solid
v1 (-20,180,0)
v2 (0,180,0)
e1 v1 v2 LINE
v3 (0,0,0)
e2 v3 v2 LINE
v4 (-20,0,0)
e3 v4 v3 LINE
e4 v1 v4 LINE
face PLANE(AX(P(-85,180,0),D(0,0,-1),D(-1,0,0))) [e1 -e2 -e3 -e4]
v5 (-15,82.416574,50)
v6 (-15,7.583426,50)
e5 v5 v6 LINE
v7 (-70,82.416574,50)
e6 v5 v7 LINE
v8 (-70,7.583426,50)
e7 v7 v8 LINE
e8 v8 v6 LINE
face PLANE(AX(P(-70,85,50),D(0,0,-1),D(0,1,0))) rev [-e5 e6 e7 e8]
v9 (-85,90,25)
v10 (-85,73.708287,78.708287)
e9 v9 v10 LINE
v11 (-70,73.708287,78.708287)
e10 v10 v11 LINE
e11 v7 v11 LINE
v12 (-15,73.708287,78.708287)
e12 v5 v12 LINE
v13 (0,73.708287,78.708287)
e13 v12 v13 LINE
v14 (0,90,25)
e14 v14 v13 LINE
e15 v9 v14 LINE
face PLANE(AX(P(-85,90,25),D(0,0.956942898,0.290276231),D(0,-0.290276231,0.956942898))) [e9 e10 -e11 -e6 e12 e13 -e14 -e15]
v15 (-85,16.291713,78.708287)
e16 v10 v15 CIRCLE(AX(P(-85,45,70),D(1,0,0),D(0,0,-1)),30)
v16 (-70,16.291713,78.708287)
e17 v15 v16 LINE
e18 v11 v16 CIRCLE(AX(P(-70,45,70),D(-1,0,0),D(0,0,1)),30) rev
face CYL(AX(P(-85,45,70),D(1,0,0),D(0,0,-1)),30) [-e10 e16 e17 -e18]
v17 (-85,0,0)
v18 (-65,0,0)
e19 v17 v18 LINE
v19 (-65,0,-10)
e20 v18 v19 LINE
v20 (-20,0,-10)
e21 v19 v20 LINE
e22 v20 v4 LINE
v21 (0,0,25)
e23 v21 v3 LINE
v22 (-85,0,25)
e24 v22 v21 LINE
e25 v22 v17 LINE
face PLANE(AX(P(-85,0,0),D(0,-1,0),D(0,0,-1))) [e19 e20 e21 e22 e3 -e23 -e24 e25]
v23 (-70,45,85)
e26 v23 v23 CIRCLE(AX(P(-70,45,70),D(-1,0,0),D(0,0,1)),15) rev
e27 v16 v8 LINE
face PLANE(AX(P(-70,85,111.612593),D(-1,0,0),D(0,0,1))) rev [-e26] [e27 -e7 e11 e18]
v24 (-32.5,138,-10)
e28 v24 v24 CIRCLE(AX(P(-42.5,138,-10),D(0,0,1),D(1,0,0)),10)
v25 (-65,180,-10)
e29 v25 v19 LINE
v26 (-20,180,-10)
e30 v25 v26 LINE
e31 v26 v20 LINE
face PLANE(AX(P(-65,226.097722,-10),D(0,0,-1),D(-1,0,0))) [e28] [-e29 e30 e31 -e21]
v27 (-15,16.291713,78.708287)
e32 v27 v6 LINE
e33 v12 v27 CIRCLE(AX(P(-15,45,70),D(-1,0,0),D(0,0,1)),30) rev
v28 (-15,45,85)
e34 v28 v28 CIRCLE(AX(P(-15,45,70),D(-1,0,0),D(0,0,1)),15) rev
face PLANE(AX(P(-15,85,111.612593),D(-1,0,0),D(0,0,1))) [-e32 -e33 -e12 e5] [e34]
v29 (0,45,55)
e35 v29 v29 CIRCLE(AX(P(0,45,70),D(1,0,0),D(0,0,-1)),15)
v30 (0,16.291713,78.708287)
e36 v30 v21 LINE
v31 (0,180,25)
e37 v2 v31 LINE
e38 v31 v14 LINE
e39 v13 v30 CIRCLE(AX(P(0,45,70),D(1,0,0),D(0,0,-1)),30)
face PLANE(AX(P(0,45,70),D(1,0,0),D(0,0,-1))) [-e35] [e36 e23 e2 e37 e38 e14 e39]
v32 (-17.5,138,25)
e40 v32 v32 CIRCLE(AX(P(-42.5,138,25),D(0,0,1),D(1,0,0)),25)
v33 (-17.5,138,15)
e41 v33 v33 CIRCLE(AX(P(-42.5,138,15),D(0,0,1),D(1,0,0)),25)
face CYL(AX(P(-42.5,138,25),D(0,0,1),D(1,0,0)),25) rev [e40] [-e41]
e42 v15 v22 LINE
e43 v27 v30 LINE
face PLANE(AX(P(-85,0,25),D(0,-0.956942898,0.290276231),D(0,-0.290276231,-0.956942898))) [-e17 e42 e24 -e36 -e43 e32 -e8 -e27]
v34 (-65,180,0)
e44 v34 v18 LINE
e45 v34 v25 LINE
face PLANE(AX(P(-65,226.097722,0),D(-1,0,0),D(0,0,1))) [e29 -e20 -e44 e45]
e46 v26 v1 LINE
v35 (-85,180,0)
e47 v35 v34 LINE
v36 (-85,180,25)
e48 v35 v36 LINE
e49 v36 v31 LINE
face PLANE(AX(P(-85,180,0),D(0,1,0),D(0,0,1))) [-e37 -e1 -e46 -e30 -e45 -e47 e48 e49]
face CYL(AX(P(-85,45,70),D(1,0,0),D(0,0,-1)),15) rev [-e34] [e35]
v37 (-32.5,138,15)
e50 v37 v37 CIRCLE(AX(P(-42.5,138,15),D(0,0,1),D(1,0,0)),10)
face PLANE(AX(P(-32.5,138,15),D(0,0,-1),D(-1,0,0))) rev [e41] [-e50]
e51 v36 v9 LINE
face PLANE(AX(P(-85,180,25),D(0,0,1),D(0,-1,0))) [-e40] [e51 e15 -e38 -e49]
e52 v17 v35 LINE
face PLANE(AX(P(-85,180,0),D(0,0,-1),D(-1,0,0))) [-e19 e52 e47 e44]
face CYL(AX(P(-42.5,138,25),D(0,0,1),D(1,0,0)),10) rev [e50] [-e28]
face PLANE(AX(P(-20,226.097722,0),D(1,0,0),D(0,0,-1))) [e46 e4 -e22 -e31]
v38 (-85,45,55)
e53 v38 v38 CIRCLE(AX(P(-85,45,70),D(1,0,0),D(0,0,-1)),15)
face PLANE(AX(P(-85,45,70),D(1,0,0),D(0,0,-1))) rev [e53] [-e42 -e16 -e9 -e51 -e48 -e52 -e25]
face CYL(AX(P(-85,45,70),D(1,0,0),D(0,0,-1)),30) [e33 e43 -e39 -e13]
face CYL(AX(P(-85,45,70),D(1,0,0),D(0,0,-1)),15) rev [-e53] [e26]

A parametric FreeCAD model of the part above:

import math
import FreeCAD as App
import Part
import Sketcher
from FreeCAD import Vector

doc = App.newDocument("Part")
body = doc.addObject("PartDesign::Body", "Body")

# Sketch on YZ plane
sketch1 = body.newObject("Sketcher::SketchObject", "Sketch")
sketch1.AttachmentSupport = (doc.getObject("YZ_Plane"), [""])
sketch1.MapMode = "FlatFace"
sketch1.addGeometry(Part.LineSegment(Vector(0, 0, 0), Vector(180, 0, 0)), False)
sketch1.addGeometry(Part.LineSegment(Vector(180, 0, 0), Vector(180, 25, 0)), False)
sketch1.addGeometry(Part.LineSegment(Vector(180, 25, 0), Vector(90, 25, 0)), False)
sketch1.addGeometry(Part.LineSegment(Vector(90, 25, 0), Vector(74, 79, 0)), False)
sketch1.addGeometry(Part.ArcOfCircle(Part.Circle(Vector(45, 70, 0), Vector(0, 0, 1), 30), math.radians(17), math.radians(163)), False)
sketch1.addGeometry(Part.LineSegment(Vector(16, 79, 0), Vector(0, 25, 0)), False)
sketch1.addGeometry(Part.LineSegment(Vector(0, 25, 0), Vector(0, 0, 0)), False)
sketch1.addGeometry(Part.Circle(Vector(45, 70, 0), Vector(0, 0, 1), 15), False)
sketch1.addConstraint(Sketcher.Constraint("Coincident", 0, 2, 1, 1))
sketch1.addConstraint(Sketcher.Constraint("Coincident", 1, 2, 2, 1))
sketch1.addConstraint(Sketcher.Constraint("Coincident", 2, 2, 3, 1))
sketch1.addConstraint(Sketcher.Constraint("Tangent", 3, 2, 4, 1))
sketch1.addConstraint(Sketcher.Constraint("Tangent", 4, 2, 5, 1))
sketch1.addConstraint(Sketcher.Constraint("Coincident", 5, 2, 6, 1))
sketch1.addConstraint(Sketcher.Constraint("Coincident", 6, 2, 0, 1))
sketch1.addConstraint(Sketcher.Constraint("Horizontal", 0))
sketch1.addConstraint(Sketcher.Constraint("Vertical", 1))
sketch1.addConstraint(Sketcher.Constraint("Horizontal", 2))
sketch1.addConstraint(Sketcher.Constraint("Vertical", 6))
sketch1.addConstraint(Sketcher.Constraint("Coincident", 6, 2, -1, 1))
sketch1.addConstraint(Sketcher.Constraint("Coincident", 7, 3, 4, 3))
sketch1.addConstraint(Sketcher.Constraint("Horizontal", 3, 2, 4, 2))
sketch1.addConstraint(Sketcher.Constraint("Horizontal", 2, 2, 5, 2))
sketch1.addConstraint(Sketcher.Constraint("Diameter", 7, 30.0))
sketch1.addConstraint(Sketcher.Constraint("Radius", 4, 30.0))
sketch1.addConstraint(Sketcher.Constraint("DistanceX", 0, 1, 0, 2, 180.0))
sketch1.addConstraint(Sketcher.Constraint("DistanceX", 2, 2, 2, 1, 90.0))
sketch1.addConstraint(Sketcher.Constraint("DistanceY", 1, 1, 1, 2, 25.0))
sketch1.addConstraint(Sketcher.Constraint("DistanceY", -1, 1, 4, 3, 70.0))
pad1 = body.newObject("PartDesign::Pad", "Pad")
pad1.Profile = sketch1
pad1.Length = 85
pad1.Reversed = True

# Sketch on XZ plane
sketch2 = body.newObject("Sketcher::SketchObject", "Sketch001")
sketch2.AttachmentSupport = (doc.getObject("XZ_Plane"), [""])
sketch2.MapMode = "FlatFace"
sketch2.addGeometry(Part.LineSegment(Vector(-70, 112, 0), Vector(-70, 50, 0)), False)
sketch2.addGeometry(Part.LineSegment(Vector(-70, 50, 0), Vector(-15, 50, 0)), False)
sketch2.addGeometry(Part.LineSegment(Vector(-15, 50, 0), Vector(-15, 112, 0)), False)
sketch2.addGeometry(Part.LineSegment(Vector(-15, 112, 0), Vector(-70, 112, 0)), False)
sketch2.addConstraint(Sketcher.Constraint("Coincident", 0, 2, 1, 1))
sketch2.addConstraint(Sketcher.Constraint("Coincident", 1, 2, 2, 1))
sketch2.addConstraint(Sketcher.Constraint("Coincident", 2, 2, 3, 1))
sketch2.addConstraint(Sketcher.Constraint("Coincident", 3, 2, 0, 1))
sketch2.addConstraint(Sketcher.Constraint("Vertical", 0))
sketch2.addConstraint(Sketcher.Constraint("Horizontal", 1))
sketch2.addConstraint(Sketcher.Constraint("Vertical", 2))
sketch2.addConstraint(Sketcher.Constraint("Horizontal", 3))
sketch2.addConstraint(Sketcher.Constraint("DistanceX", 1, 1, 1, 2, 55.0))
sketch2.addConstraint(Sketcher.Constraint("DistanceX", 0, 2, -1, 1, 70.0))
sketch2.addConstraint(Sketcher.Constraint("DistanceY", -1, 1, 0, 2, 50.0))
sketch2.addConstraint(Sketcher.Constraint("DistanceY", 0, 2, 0, 1, 61.612593))
pocket1 = body.newObject("PartDesign::Pocket", "Pocket")
pocket1.Profile = sketch2
pocket1.Length = 85

# Sketch on XZ plane
sketch3 = body.newObject("Sketcher::SketchObject", "Sketch002")
sketch3.AttachmentSupport = (doc.getObject("XZ_Plane"), [""])
sketch3.MapMode = "FlatFace"
sketch3.addGeometry(Part.LineSegment(Vector(-65, 0, 0), Vector(-65, -10, 0)), False)
sketch3.addGeometry(Part.LineSegment(Vector(-65, -10, 0), Vector(-20, -10, 0)), False)
sketch3.addGeometry(Part.LineSegment(Vector(-20, -10, 0), Vector(-20, 0, 0)), False)
sketch3.addGeometry(Part.LineSegment(Vector(-20, 0, 0), Vector(-65, 0, 0)), False)
sketch3.addConstraint(Sketcher.Constraint("Coincident", 0, 2, 1, 1))
sketch3.addConstraint(Sketcher.Constraint("Coincident", 1, 2, 2, 1))
sketch3.addConstraint(Sketcher.Constraint("Coincident", 2, 2, 3, 1))
sketch3.addConstraint(Sketcher.Constraint("Coincident", 3, 2, 0, 1))
sketch3.addConstraint(Sketcher.Constraint("Vertical", 0))
sketch3.addConstraint(Sketcher.Constraint("Horizontal", 1))
sketch3.addConstraint(Sketcher.Constraint("Vertical", 2))
sketch3.addConstraint(Sketcher.Constraint("Horizontal", 3))
sketch3.addConstraint(Sketcher.Constraint("PointOnObject", 2, 2, -1))
sketch3.addConstraint(Sketcher.Constraint("DistanceX", 1, 1, 1, 2, 45.0))
sketch3.addConstraint(Sketcher.Constraint("DistanceY", 0, 2, 0, 1, 10.0))
sketch3.addConstraint(Sketcher.Constraint("DistanceX", 0, 2, -1, 1, 65.0))
pad2 = body.newObject("PartDesign::Pad", "Pad001")
pad2.Profile = sketch3
pad2.Length = 180
pad2.Reversed = True

# Sketch on XY plane
sketch4 = body.newObject("Sketcher::SketchObject", "Sketch003")
sketch4.AttachmentSupport = (doc.getObject("XY_Plane"), [""])
sketch4.MapMode = "FlatFace"
sketch4.AttachmentOffset = App.Placement(Vector(0, 0, 25), App.Rotation())
sketch4.addGeometry(Part.Circle(Vector(-42, 138, 0), Vector(0, 0, 1), 10), False)
sketch4.addConstraint(Sketcher.Constraint("Diameter", 0, 20.0))
sketch4.addConstraint(Sketcher.Constraint("DistanceY", -1, 1, 0, 3, 138.0))
sketch4.addConstraint(Sketcher.Constraint("DistanceX", 0, 3, -1, 1, 42.5))
doc.recompute()
hole = body.newObject("PartDesign::Hole", "Hole")
hole.Profile = sketch4
hole.ThreadType = "None"
hole.Diameter = 20
hole.DepthType = "ThroughAll"
hole.HoleCutType = "Counterbore"
hole.HoleCutDiameter = 50
hole.HoleCutDepth = 10

doc.recompute()
